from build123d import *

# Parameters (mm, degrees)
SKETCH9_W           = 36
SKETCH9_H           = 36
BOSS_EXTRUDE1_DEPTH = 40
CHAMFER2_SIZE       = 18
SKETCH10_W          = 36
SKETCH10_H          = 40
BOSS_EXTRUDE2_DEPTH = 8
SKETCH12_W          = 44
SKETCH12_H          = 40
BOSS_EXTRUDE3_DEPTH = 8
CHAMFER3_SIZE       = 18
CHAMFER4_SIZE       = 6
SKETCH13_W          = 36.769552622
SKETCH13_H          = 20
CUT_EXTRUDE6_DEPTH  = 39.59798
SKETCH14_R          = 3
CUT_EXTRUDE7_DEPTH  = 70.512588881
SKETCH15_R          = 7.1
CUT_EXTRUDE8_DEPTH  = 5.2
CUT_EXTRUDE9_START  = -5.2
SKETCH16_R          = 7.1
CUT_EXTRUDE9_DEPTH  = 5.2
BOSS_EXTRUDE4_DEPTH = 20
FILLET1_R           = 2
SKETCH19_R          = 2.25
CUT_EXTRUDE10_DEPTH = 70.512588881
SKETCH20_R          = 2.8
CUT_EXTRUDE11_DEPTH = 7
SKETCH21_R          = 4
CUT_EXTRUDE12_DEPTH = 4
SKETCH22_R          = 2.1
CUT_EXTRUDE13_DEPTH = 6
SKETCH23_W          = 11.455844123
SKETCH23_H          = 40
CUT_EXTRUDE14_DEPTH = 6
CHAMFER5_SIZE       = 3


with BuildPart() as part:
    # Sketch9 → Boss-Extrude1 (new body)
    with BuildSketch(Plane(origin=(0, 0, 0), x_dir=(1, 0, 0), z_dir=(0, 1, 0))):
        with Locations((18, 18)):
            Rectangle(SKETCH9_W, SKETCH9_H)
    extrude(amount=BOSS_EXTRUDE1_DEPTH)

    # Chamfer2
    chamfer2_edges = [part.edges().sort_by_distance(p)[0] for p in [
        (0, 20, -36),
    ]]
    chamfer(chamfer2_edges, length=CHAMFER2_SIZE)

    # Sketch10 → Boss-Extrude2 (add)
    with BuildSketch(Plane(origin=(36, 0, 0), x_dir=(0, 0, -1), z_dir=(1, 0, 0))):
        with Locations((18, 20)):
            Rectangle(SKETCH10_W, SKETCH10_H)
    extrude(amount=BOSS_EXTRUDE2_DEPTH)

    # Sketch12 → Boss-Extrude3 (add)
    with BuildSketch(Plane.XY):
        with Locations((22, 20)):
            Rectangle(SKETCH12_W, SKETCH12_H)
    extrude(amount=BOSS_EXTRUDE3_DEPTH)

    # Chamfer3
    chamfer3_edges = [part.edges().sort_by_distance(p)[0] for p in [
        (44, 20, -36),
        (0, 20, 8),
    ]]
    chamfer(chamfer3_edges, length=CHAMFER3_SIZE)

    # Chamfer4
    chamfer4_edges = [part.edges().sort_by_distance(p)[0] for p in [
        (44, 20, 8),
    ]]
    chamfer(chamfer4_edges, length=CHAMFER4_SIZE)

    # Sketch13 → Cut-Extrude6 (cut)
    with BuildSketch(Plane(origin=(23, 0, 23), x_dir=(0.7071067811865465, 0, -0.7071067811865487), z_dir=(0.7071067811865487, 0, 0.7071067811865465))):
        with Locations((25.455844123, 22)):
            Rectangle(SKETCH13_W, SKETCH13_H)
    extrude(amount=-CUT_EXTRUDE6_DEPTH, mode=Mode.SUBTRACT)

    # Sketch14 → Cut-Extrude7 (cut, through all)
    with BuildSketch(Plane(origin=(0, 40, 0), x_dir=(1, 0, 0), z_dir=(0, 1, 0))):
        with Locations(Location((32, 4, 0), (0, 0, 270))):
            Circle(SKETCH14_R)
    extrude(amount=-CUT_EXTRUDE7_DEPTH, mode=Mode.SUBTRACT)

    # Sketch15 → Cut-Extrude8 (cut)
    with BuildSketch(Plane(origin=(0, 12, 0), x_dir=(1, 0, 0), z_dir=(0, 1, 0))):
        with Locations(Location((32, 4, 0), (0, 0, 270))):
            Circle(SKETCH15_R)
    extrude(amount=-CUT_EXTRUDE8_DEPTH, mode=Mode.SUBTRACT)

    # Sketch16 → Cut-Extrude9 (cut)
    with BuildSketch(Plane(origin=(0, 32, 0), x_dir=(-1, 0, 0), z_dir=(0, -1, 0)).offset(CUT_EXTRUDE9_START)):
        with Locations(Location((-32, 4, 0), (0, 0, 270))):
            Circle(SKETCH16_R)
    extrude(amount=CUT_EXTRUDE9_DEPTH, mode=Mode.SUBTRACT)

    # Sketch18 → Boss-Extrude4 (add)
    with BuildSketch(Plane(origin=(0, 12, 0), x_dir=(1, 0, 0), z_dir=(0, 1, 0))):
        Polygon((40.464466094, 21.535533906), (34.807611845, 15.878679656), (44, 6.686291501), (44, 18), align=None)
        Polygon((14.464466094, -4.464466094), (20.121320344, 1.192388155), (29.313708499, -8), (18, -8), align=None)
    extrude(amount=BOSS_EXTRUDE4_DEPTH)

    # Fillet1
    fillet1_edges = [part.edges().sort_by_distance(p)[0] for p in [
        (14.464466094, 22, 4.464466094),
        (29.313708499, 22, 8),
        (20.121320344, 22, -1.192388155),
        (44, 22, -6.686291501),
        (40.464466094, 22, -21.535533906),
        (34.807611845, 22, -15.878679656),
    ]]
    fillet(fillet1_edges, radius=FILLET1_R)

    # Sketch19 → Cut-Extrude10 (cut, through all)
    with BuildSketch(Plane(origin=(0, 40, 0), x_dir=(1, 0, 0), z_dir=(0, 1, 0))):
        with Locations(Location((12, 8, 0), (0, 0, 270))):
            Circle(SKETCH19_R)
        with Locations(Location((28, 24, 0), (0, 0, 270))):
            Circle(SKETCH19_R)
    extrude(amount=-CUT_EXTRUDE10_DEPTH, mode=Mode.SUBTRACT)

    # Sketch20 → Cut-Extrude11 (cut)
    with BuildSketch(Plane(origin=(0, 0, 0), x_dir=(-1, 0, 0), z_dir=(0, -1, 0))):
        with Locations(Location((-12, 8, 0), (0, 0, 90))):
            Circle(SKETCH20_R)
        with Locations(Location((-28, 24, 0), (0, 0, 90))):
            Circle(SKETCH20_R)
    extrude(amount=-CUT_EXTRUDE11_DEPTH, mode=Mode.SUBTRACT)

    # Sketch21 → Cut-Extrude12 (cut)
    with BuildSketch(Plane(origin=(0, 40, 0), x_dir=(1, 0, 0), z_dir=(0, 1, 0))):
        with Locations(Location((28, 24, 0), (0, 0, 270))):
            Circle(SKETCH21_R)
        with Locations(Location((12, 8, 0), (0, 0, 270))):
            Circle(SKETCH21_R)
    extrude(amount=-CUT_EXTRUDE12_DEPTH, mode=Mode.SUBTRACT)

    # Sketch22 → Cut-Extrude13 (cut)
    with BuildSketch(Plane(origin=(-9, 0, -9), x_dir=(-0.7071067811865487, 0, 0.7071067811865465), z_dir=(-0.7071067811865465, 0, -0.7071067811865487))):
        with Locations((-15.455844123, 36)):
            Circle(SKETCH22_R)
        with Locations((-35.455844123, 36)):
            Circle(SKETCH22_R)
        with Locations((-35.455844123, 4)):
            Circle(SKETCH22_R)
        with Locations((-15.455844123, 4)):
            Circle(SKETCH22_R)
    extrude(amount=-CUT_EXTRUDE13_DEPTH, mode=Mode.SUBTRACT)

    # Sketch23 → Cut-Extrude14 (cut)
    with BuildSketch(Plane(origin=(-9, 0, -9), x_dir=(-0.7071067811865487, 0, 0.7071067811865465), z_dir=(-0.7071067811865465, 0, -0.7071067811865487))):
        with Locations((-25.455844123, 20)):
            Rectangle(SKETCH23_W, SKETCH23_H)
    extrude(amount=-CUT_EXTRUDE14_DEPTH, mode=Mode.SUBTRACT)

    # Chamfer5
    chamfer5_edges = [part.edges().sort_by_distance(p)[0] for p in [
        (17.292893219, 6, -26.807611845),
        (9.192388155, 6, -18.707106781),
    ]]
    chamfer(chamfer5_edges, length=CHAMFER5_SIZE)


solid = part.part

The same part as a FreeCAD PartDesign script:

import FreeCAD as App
import Part
import Sketcher
from FreeCAD import Vector


def edges_at(feature, points):
    """Names of the edges that pass closest to the given points."""
    edges = feature.Shape.Edges
    near = lambda p: min(range(len(edges)), key=lambda i: edges[i].distToShape(Part.Vertex(*p))[0])
    return sorted({f"Edge{near(p) + 1}" for p in points})


def add_polygon(sketch, points):
    """Adds a closed chain of lines whose ends are joined by coincident constraints."""
    first, n = sketch.GeometryCount, len(points)
    for a, b in zip(points, points[1:] + points[:1]):
        sketch.addGeometry(Part.LineSegment(App.Vector(*a, 0), App.Vector(*b, 0)), False)
    for i in range(n):
        sketch.addConstraint(Sketcher.Constraint("Coincident", first + i, 2, first + (i + 1) % n, 1))

doc = App.newDocument("Part")
body = doc.addObject("PartDesign::Body", "Body")

sketch1 = doc.addObject("Sketcher::SketchObject", "Sketch")
body.addObject(sketch1)
sketch1.AttachmentSupport = (doc.XZ_Plane, [""])
sketch1.MapMode = "FlatFace"
add_polygon(sketch1, [(0, -36), (0, 0), (36, 0), (36, -36)])
sketch1.addConstraint([
    Sketcher.Constraint("Vertical", 0),
    Sketcher.Constraint("Horizontal", 1),
    Sketcher.Constraint("Vertical", 2),
    Sketcher.Constraint("Horizontal", 3),
    Sketcher.Constraint("Coincident", 0, 2, -1, 1),
    Sketcher.Constraint("Equal", 3, 0),
    Sketcher.Constraint("DistanceX", 1, 1, 1, 2, 36.0),
])
pad1 = doc.addObject("PartDesign::Pad", "Pad")
body.addObject(pad1)
pad1.Profile = sketch1
pad1.Length = 40
pad1.Reversed = True
doc.recompute()

chamfer = doc.addObject("PartDesign::Chamfer", "Chamfer")
body.addObject(chamfer)
chamfer.Base = (pad1, edges_at(pad1, [(0, 20, -36)]))
chamfer.Size = 18

sketch2 = doc.addObject("Sketcher::SketchObject", "Sketch001")
body.addObject(sketch2)
sketch2.AttachmentSupport = (doc.YZ_Plane, [""])
sketch2.MapMode = "FlatFace"
sketch2.AttachmentOffset = App.Placement(Vector(0, 0, 36), App.Rotation())
add_polygon(sketch2, [(40, 0), (0, 0), (0, -36), (40, -36)])
sketch2.addConstraint([
    Sketcher.Constraint("Horizontal", 0),
    Sketcher.Constraint("Vertical", 1),
    Sketcher.Constraint("Horizontal", 2),
    Sketcher.Constraint("Vertical", 3),
    Sketcher.Constraint("Coincident", 0, 2, -1, 1),
    Sketcher.Constraint("DistanceX", 0, 2, 0, 1, 40.0),
    Sketcher.Constraint("DistanceY", 1, 2, 1, 1, 36.0),
])
pad2 = doc.addObject("PartDesign::Pad", "Pad001")
body.addObject(pad2)
pad2.Profile = sketch2
pad2.Length = 8

sketch3 = doc.addObject("Sketcher::SketchObject", "Sketch002")
body.addObject(sketch3)
sketch3.AttachmentSupport = (doc.XY_Plane, [""])
sketch3.MapMode = "FlatFace"
add_polygon(sketch3, [(0, 40), (0, 0), (44, 0), (44, 40)])
sketch3.addConstraint([
    Sketcher.Constraint("Vertical", 0),
    Sketcher.Constraint("Horizontal", 1),
    Sketcher.Constraint("Vertical", 2),
    Sketcher.Constraint("Horizontal", 3),
    Sketcher.Constraint("Coincident", 0, 2, -1, 1),
    Sketcher.Constraint("DistanceX", 1, 1, 1, 2, 44.0),
    Sketcher.Constraint("DistanceY", 0, 2, 0, 1, 40.0),
])
pad3 = doc.addObject("PartDesign::Pad", "Pad002")
body.addObject(pad3)
pad3.Profile = sketch3
pad3.Length = 8
doc.recompute()

chamfer2 = doc.addObject("PartDesign::Chamfer", "Chamfer001")
body.addObject(chamfer2)
chamfer2.Base = (pad3, edges_at(pad3, [(44, 20, -36), (0, 20, 8)]))
chamfer2.Size = 18
doc.recompute()

chamfer3 = doc.addObject("PartDesign::Chamfer", "Chamfer002")
body.addObject(chamfer3)
chamfer3.Base = (chamfer2, edges_at(chamfer2, [(44, 20, 8)]))
chamfer3.Size = 6

sketch4 = doc.addObject("Sketcher::SketchObject", "Sketch003")
body.addObject(sketch4)
sketch4.Placement = App.Placement(Vector(23, 0, 23), App.Rotation(Vector(0.707106781, 0, -0.707106781), Vector(0, 0.999999999, 0), Vector(0.707106781, 0, 0.707106781), "ZXY"))
add_polygon(sketch4, [(7, 32), (7, 12), (44, 12), (44, 32)])
sketch4.addConstraint([
    Sketcher.Constraint("Vertical", 0),
    Sketcher.Constraint("Horizontal", 1),
    Sketcher.Constraint("Vertical", 2),
    Sketcher.Constraint("Horizontal", 3),
    Sketcher.Constraint("DistanceY", 0, 2, 0, 1, 20.0),
    Sketcher.Constraint("DistanceY", -1, 1, 0, 2, 12.0),
    Sketcher.Constraint("DistanceX", 1, 1, 1, 2, 36.769553),
    Sketcher.Constraint("DistanceX", -1, 1, 1, 2, 43.84062),
])
pocket1 = doc.addObject("PartDesign::Pocket", "Pocket")
body.addObject(pocket1)
pocket1.Profile = sketch4
pocket1.Length = 39.59798

sketch5 = doc.addObject("Sketcher::SketchObject", "Sketch004")
body.addObject(sketch5)
sketch5.AttachmentSupport = (doc.XZ_Plane, [""])
sketch5.MapMode = "FlatFace"
sketch5.AttachmentOffset = App.Placement(Vector(0, 0, -40), App.Rotation())
sketch5.addGeometry(Part.Circle(Vector(32, -4, 0), Vector(0, 0, 1), 3), False)
sketch5.addConstraint([
    Sketcher.Constraint("Diameter", 0, 6.0),
    Sketcher.Constraint("DistanceX", -1, 1, 0, 3, 32.0),
    Sketcher.Constraint("DistanceY", 0, 3, -1, 1, 4.0),
])
pocket2 = doc.addObject("PartDesign::Pocket", "Pocket001")
body.addObject(pocket2)
pocket2.Profile = sketch5
pocket2.Type = "ThroughAll"
pocket2.Reversed = True

sketch6 = doc.addObject("Sketcher::SketchObject", "Sketch005")
body.addObject(sketch6)
sketch6.AttachmentSupport = (doc.XZ_Plane, [""])
sketch6.MapMode = "FlatFace"
sketch6.AttachmentOffset = App.Placement(Vector(0, 0, -12), App.Rotation())
sketch6.addGeometry(Part.Circle(Vector(32, -4, 0), Vector(0, 0, 1), 7), False)
sketch6.addConstraint([
    Sketcher.Constraint("Diameter", 0, 14.2),
    Sketcher.Constraint("DistanceX", -1, 1, 0, 3, 32.0),
    Sketcher.Constraint("DistanceY", 0, 3, -1, 1, 4.0),
])
pocket3 = doc.addObject("PartDesign::Pocket", "Pocket002")
body.addObject(pocket3)
pocket3.Profile = sketch6
pocket3.Length = 5.2
pocket3.Reversed = True

sketch7 = doc.addObject("Sketcher::SketchObject", "Sketch006")
body.addObject(sketch7)
sketch7.AttachmentSupport = (doc.XZ_Plane, [""])
sketch7.MapMode = "FlatFace"
sketch7.AttachmentOffset = App.Placement(Vector(0, 0, -37.2), App.Rotation())
sketch7.addGeometry(Part.Circle(Vector(32, -4, 0), Vector(0, 0, 1), 7), False)
sketch7.addConstraint([
    Sketcher.Constraint("Diameter", 0, 14.2),
    Sketcher.Constraint("DistanceX", -1, 1, 0, 3, 32.0),
    Sketcher.Constraint("DistanceY", 0, 3, -1, 1, 4.0),
])
pocket4 = doc.addObject("PartDesign::Pocket", "Pocket003")
body.addObject(pocket4)
pocket4.Profile = sketch7
pocket4.Length = 5.2
pocket4.Reversed = True

sketch8 = doc.addObject("Sketcher::SketchObject", "Sketch007")
body.addObject(sketch8)
sketch8.AttachmentSupport = (doc.XZ_Plane, [""])
sketch8.MapMode = "FlatFace"
sketch8.AttachmentOffset = App.Placement(Vector(0, 0, -12), App.Rotation())
add_polygon(sketch8, [(40, -22), (35, -16), (44, -7), (44, -18)])
add_polygon(sketch8, [(20, -1), (14, 4), (18, 8), (29, 8)])
sketch8.addConstraint([
    Sketcher.Constraint("Vertical", 2),
    Sketcher.Constraint("Horizontal", 6),
    Sketcher.Constraint("Perpendicular", 0, 1),
    Sketcher.Constraint("Parallel", 1, 3),
    Sketcher.Constraint("Perpendicular", 3, 4),
    Sketcher.Constraint("Perpendicular", 4, 5),
    Sketcher.Constraint("Parallel", 5, 7),
    Sketcher.Constraint("Equal", 6, 2),
    Sketcher.Constraint("Equal", 0, 4),
    Sketcher.Constraint("Equal", 3, 5),
    Sketcher.Constraint("Distance", 0, 8.0),
    Sketcher.Constraint("Distance", 1, 13.0),
    Sketcher.Constraint("DistanceX", -1, 1, 1, 2, 44.0),
    Sketcher.Constraint("DistanceY", 2, 2, -1, 1, 18.0),
    Sketcher.Constraint("DistanceX", -1, 1, 5, 2, 18.0),
    Sketcher.Constraint("DistanceY", -1, 1, 5, 2, 8.0),
])
pad4 = doc.addObject("PartDesign::Pad", "Pad003")
body.addObject(pad4)
pad4.Profile = sketch8
pad4.Length = 20
pad4.Reversed = True
doc.recompute()

fillet = doc.addObject("PartDesign::Fillet", "Fillet")
body.addObject(fillet)
fillet.Base = (pad4, edges_at(pad4, [
    (14.464, 22, 4.464),
    (29.314, 22, 8),
    (20.121, 22, -1.192),
    (44, 22, -6.686),
    (40.464, 22, -21.536),
    (34.808, 22, -15.879),
]))
fillet.Radius = 2

sketch9 = doc.addObject("Sketcher::SketchObject", "Sketch008")
body.addObject(sketch9)
sketch9.AttachmentSupport = (doc.XZ_Plane, [""])
sketch9.MapMode = "FlatFace"
sketch9.AttachmentOffset = App.Placement(Vector(0, 0, -40), App.Rotation())
sketch9.addGeometry([
    Part.Circle(Vector(12, -8, 0), Vector(0, 0, 1), 2.2),
    Part.Circle(Vector(28, -24, 0), Vector(0, 0, 1), 2.2),
], False)
sketch9.addConstraint([
    Sketcher.Constraint("Equal", 0, 1),
    Sketcher.Constraint("Diameter", 0, 4.5),
    Sketcher.Constraint("DistanceX", -1, 1, 0, 3, 12.0),
    Sketcher.Constraint("DistanceY", 0, 3, -1, 1, 8.0),
    Sketcher.Constraint("DistanceX", -1, 1, 1, 3, 28.0),
    Sketcher.Constraint("DistanceY", 1, 3, -1, 1, 24.0),
])
pocket5 = doc.addObject("PartDesign::Pocket", "Pocket004")
body.addObject(pocket5)
pocket5.Profile = sketch9
pocket5.Type = "ThroughAll"
pocket5.Reversed = True

sketch10 = doc.addObject("Sketcher::SketchObject", "Sketch009")
body.addObject(sketch10)
sketch10.AttachmentSupport = (doc.XZ_Plane, [""])
sketch10.MapMode = "FlatFace"
sketch10.addGeometry([
    Part.Circle(Vector(12, -8, 0), Vector(0, 0, 1), 2.8),
    Part.Circle(Vector(28, -24, 0), Vector(0, 0, 1), 2.8),
], False)
sketch10.addConstraint([
    Sketcher.Constraint("Equal", 0, 1),
    Sketcher.Constraint("Diameter", 0, 5.6),
    Sketcher.Constraint("DistanceX", -1, 1, 0, 3, 12.0),
    Sketcher.Constraint("DistanceY", 0, 3, -1, 1, 8.0),
    Sketcher.Constraint("DistanceX", -1, 1, 1, 3, 28.0),
    Sketcher.Constraint("DistanceY", 1, 3, -1, 1, 24.0),
])
pocket6 = doc.addObject("PartDesign::Pocket", "Pocket005")
body.addObject(pocket6)
pocket6.Profile = sketch10
pocket6.Length = 7

sketch11 = doc.addObject("Sketcher::SketchObject", "Sketch010")
body.addObject(sketch11)
sketch11.AttachmentSupport = (doc.XZ_Plane, [""])
sketch11.MapMode = "FlatFace"
sketch11.AttachmentOffset = App.Placement(Vector(0, 0, -40), App.Rotation())
sketch11.addGeometry([
    Part.Circle(Vector(28, -24, 0), Vector(0, 0, 1), 4),
    Part.Circle(Vector(12, -8, 0), Vector(0, 0, 1), 4),
], False)
sketch11.addConstraint([
    Sketcher.Constraint("Equal", 0, 1),
    Sketcher.Constraint("Diameter", 0, 8.0),
    Sketcher.Constraint("DistanceX", -1, 1, 0, 3, 28.0),
    Sketcher.Constraint("DistanceY", 0, 3, -1, 1, 24.0),
    Sketcher.Constraint("DistanceX", -1, 1, 1, 3, 12.0),
    Sketcher.Constraint("DistanceY", 1, 3, -1, 1, 8.0),
])
pocket7 = doc.addObject("PartDesign::Pocket", "Pocket006")
body.addObject(pocket7)
pocket7.Profile = sketch11
pocket7.Length = 4
pocket7.Reversed = True

sketch12 = doc.addObject("Sketcher::SketchObject", "Sketch011")
body.addObject(sketch12)
sketch12.Placement = App.Placement(Vector(-9, 0, -9), App.Rotation(Vector(-0.707106781, 0, 0.707106781), Vector(0, 0.999999999, 0), Vector(-0.707106781, 0, -0.707106781), "ZXY"))
sketch12.addGeometry([
    Part.Circle(Vector(-15.5, 36, 0), Vector(0, 0, 1), 2.1),
    Part.Circle(Vector(-35.5, 36, 0), Vector(0, 0, 1), 2.1),
    Part.Circle(Vector(-35.5, 4, 0), Vector(0, 0, 1), 2.1),
    Part.Circle(Vector(-15.5, 4, 0), Vector(0, 0, 1), 2.1),
], False)
sketch12.addConstraint([
    Sketcher.Constraint("Equal", 0, 1),
    Sketcher.Constraint("Equal", 1, 2),
    Sketcher.Constraint("Equal", 2, 3),
    Sketcher.Constraint("Horizontal", 0, 3, 1, 3),
    Sketcher.Constraint("Horizontal", 2, 3, 3, 3),
    Sketcher.Constraint("Vertical", 1, 3, 2, 3),
    Sketcher.Constraint("Vertical", 0, 3, 3, 3),
    Sketcher.Constraint("Diameter", 0, 4.2),
    Sketcher.Constraint("DistanceY", -1, 1, 0, 3, 36.0),
    Sketcher.Constraint("DistanceY", -1, 1, 2, 3, 4.0),
    Sketcher.Constraint("DistanceX", 1, 3, 0, 3, 20.0),
    Sketcher.Constraint("DistanceX", 0, 3, -1, 1, 15.455844),
])
pocket8 = doc.addObject("PartDesign::Pocket", "Pocket007")
body.addObject(pocket8)
pocket8.Profile = sketch12
pocket8.Length = 6

sketch13 = doc.addObject("Sketcher::SketchObject", "Sketch012")
body.addObject(sketch13)
sketch13.Placement = App.Placement(Vector(-9, 0, -9), App.Rotation(Vector(-0.707106781, 0, 0.707106781), Vector(0, 0.999999999, 0), Vector(-0.707106781, 0, -0.707106781), "ZXY"))
add_polygon(sketch13, [(-31, 40), (-31, 0), (-20, 0), (-20, 40)])
sketch13.addConstraint([
    Sketcher.Constraint("Vertical", 0),
    Sketcher.Constraint("Horizontal", 1),
    Sketcher.Constraint("Vertical", 2),
    Sketcher.Constraint("Horizontal", 3),
    Sketcher.Constraint("PointOnObject", 0, 2, -1),
    Sketcher.Constraint("DistanceY", 0, 2, 0, 1, 40.0),
    Sketcher.Constraint("DistanceX", 1, 1, 1, 2, 11.455844),
    Sketcher.Constraint("DistanceX", 0, 2, -1, 1, 31.183766),
])
pocket9 = doc.addObject("PartDesign::Pocket", "Pocket008")
body.addObject(pocket9)
pocket9.Profile = sketch13
pocket9.Length = 6
doc.recompute()

chamfer4 = doc.addObject("PartDesign::Chamfer", "Chamfer003")
body.addObject(chamfer4)
chamfer4.Base = (pocket9, edges_at(pocket9, [(17.293, 6, -26.808), (9.192, 6, -18.707)]))
chamfer4.Size = 3

doc.recompute()
